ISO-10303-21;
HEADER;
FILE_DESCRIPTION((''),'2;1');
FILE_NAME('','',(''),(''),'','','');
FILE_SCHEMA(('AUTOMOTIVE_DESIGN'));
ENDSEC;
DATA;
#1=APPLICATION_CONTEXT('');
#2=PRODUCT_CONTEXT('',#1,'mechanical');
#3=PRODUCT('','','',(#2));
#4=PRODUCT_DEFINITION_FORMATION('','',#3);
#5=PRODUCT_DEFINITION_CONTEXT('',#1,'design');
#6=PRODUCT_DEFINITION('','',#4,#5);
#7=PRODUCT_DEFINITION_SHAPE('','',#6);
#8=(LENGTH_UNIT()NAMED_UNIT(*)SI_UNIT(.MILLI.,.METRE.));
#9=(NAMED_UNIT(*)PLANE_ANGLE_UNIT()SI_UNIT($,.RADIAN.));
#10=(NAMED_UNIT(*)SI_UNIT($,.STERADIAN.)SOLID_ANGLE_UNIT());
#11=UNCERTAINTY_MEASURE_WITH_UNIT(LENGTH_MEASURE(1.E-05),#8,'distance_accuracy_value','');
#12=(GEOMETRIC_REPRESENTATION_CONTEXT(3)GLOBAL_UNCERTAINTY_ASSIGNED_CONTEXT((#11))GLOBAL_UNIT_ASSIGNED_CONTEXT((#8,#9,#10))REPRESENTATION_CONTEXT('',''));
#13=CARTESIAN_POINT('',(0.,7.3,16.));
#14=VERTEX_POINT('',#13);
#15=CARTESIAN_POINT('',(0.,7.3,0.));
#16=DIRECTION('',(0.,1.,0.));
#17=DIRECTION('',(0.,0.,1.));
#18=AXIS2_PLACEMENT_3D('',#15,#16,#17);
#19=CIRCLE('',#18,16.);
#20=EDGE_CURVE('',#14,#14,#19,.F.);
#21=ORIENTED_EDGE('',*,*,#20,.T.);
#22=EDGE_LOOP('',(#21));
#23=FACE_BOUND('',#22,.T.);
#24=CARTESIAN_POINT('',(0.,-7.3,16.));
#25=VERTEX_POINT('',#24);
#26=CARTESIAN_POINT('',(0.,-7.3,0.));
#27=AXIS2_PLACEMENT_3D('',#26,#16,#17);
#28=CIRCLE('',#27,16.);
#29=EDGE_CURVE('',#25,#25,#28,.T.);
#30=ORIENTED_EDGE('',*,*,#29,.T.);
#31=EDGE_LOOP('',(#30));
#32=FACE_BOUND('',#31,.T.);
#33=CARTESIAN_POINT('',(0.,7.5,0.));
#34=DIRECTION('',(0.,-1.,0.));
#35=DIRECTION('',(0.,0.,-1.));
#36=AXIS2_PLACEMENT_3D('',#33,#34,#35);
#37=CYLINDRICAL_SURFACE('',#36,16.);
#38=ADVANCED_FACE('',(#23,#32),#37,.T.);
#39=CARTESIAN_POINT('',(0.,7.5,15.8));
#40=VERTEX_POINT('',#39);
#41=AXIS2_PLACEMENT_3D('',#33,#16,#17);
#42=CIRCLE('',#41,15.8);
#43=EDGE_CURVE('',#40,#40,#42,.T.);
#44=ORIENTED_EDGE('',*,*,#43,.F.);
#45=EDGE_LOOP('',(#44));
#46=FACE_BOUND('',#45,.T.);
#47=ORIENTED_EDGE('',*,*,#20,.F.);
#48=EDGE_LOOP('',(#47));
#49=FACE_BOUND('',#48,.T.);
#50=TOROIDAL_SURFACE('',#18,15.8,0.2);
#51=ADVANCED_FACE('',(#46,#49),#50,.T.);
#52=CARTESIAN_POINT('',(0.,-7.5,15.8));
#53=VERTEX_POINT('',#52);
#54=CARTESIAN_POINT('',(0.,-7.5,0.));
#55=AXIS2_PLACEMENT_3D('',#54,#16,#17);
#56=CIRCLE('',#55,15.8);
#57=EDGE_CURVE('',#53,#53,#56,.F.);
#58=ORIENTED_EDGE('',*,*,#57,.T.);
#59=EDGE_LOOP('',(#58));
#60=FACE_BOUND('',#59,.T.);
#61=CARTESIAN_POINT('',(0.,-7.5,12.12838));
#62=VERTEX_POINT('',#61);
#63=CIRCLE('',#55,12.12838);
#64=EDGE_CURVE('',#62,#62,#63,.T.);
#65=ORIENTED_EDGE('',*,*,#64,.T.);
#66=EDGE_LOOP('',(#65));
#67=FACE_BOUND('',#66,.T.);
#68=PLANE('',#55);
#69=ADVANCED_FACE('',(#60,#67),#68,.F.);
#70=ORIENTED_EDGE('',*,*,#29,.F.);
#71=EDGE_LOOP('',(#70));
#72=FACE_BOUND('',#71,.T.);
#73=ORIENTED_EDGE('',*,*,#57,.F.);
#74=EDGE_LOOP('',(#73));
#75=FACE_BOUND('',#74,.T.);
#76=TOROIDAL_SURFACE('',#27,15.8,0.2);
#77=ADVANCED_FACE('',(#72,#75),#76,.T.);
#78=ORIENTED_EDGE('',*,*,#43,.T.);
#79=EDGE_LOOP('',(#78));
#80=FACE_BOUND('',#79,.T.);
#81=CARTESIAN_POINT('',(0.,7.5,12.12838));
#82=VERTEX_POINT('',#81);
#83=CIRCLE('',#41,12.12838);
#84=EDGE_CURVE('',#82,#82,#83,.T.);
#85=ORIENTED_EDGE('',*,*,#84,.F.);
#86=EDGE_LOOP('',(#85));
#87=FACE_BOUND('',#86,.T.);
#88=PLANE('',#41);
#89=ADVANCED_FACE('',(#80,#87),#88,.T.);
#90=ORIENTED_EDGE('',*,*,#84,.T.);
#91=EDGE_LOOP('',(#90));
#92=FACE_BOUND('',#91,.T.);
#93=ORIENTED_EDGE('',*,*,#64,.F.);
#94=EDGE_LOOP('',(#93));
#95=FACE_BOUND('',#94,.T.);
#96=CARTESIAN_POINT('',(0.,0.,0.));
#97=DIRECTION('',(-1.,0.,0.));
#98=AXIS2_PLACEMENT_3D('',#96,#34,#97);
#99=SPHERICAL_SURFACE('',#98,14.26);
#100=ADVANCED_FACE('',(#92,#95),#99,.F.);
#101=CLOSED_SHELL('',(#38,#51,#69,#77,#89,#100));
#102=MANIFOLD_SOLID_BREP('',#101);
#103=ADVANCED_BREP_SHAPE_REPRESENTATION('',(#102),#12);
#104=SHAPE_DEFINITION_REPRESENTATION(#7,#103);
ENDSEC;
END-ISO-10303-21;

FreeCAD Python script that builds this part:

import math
import FreeCAD as App
import Part
import Sketcher
from FreeCAD import Vector
Q = App.Units.Quantity


def edges_at(feature, points):
    """Names of the edges that pass closest to the given points."""
    edges = feature.Shape.Edges
    near = lambda p: min(range(len(edges)), key=lambda i: edges[i].distToShape(Part.Vertex(*p))[0])
    return sorted({f"Edge{near(p) + 1}" for p in points})

doc = App.newDocument("Part")
body = doc.addObject("PartDesign::Body", "Body")

sketch1 = body.newObject("Sketcher::SketchObject", "Sketch")
sketch1.AttachmentSupport = (doc.getObject("XZ_Plane"), [""])
sketch1.MapMode = "FlatFace"
sketch1.addGeometry(Part.Circle(Vector(0, 0, 0), Vector(0, 0, 1), 16), False)
sketch1.addConstraint([
    Sketcher.Constraint("Coincident", 0, 3, -1, 1),
    Sketcher.Constraint("Diameter", 0, Q("32 mm")),
])
pad1 = body.newObject("PartDesign::Pad", "Pad")
pad1.Profile = sketch1
pad1.Length = 15
pad1.Midplane = True

sketch2 = body.newObject("Sketcher::SketchObject", "Sketch001")
sketch2.AttachmentSupport = (doc.getObject("XY_Plane"), [""])
sketch2.MapMode = "FlatFace"
sketch2.addGeometry([
    Part.LineSegment(Vector(0, 14.26, 0), Vector(0, -14.26, 0)),
    Part.ArcOfCircle(Part.Circle(Vector(0, 0, 0), Vector(0, 0, 1), 14.26), math.radians(-90), math.radians(90)),
], False)
sketch2.addConstraint([
    Sketcher.Constraint("Coincident", 0, 1, 1, 2),
    Sketcher.Constraint("Coincident", 1, 1, 0, 2),
    Sketcher.Constraint("Vertical", 0),
    Sketcher.Constraint("Coincident", 1, 3, -1, 1),
    Sketcher.Constraint("PointOnObject", 0, 1, -2),
    Sketcher.Constraint("Radius", 1, Q("14.26 mm")),
])
groove = body.newObject("PartDesign::Groove", "Groove")
groove.Profile = sketch2
groove.ReferenceAxis = (sketch2, ["V_Axis"])
groove.Angle = 360
doc.recompute()

fillet = body.newObject("PartDesign::Fillet", "Fillet")
fillet.Base = (groove, edges_at(groove, [(-16, -7.5, 0), (-16, 7.5, 0)]))
fillet.Radius = 0.2

doc.recompute()
